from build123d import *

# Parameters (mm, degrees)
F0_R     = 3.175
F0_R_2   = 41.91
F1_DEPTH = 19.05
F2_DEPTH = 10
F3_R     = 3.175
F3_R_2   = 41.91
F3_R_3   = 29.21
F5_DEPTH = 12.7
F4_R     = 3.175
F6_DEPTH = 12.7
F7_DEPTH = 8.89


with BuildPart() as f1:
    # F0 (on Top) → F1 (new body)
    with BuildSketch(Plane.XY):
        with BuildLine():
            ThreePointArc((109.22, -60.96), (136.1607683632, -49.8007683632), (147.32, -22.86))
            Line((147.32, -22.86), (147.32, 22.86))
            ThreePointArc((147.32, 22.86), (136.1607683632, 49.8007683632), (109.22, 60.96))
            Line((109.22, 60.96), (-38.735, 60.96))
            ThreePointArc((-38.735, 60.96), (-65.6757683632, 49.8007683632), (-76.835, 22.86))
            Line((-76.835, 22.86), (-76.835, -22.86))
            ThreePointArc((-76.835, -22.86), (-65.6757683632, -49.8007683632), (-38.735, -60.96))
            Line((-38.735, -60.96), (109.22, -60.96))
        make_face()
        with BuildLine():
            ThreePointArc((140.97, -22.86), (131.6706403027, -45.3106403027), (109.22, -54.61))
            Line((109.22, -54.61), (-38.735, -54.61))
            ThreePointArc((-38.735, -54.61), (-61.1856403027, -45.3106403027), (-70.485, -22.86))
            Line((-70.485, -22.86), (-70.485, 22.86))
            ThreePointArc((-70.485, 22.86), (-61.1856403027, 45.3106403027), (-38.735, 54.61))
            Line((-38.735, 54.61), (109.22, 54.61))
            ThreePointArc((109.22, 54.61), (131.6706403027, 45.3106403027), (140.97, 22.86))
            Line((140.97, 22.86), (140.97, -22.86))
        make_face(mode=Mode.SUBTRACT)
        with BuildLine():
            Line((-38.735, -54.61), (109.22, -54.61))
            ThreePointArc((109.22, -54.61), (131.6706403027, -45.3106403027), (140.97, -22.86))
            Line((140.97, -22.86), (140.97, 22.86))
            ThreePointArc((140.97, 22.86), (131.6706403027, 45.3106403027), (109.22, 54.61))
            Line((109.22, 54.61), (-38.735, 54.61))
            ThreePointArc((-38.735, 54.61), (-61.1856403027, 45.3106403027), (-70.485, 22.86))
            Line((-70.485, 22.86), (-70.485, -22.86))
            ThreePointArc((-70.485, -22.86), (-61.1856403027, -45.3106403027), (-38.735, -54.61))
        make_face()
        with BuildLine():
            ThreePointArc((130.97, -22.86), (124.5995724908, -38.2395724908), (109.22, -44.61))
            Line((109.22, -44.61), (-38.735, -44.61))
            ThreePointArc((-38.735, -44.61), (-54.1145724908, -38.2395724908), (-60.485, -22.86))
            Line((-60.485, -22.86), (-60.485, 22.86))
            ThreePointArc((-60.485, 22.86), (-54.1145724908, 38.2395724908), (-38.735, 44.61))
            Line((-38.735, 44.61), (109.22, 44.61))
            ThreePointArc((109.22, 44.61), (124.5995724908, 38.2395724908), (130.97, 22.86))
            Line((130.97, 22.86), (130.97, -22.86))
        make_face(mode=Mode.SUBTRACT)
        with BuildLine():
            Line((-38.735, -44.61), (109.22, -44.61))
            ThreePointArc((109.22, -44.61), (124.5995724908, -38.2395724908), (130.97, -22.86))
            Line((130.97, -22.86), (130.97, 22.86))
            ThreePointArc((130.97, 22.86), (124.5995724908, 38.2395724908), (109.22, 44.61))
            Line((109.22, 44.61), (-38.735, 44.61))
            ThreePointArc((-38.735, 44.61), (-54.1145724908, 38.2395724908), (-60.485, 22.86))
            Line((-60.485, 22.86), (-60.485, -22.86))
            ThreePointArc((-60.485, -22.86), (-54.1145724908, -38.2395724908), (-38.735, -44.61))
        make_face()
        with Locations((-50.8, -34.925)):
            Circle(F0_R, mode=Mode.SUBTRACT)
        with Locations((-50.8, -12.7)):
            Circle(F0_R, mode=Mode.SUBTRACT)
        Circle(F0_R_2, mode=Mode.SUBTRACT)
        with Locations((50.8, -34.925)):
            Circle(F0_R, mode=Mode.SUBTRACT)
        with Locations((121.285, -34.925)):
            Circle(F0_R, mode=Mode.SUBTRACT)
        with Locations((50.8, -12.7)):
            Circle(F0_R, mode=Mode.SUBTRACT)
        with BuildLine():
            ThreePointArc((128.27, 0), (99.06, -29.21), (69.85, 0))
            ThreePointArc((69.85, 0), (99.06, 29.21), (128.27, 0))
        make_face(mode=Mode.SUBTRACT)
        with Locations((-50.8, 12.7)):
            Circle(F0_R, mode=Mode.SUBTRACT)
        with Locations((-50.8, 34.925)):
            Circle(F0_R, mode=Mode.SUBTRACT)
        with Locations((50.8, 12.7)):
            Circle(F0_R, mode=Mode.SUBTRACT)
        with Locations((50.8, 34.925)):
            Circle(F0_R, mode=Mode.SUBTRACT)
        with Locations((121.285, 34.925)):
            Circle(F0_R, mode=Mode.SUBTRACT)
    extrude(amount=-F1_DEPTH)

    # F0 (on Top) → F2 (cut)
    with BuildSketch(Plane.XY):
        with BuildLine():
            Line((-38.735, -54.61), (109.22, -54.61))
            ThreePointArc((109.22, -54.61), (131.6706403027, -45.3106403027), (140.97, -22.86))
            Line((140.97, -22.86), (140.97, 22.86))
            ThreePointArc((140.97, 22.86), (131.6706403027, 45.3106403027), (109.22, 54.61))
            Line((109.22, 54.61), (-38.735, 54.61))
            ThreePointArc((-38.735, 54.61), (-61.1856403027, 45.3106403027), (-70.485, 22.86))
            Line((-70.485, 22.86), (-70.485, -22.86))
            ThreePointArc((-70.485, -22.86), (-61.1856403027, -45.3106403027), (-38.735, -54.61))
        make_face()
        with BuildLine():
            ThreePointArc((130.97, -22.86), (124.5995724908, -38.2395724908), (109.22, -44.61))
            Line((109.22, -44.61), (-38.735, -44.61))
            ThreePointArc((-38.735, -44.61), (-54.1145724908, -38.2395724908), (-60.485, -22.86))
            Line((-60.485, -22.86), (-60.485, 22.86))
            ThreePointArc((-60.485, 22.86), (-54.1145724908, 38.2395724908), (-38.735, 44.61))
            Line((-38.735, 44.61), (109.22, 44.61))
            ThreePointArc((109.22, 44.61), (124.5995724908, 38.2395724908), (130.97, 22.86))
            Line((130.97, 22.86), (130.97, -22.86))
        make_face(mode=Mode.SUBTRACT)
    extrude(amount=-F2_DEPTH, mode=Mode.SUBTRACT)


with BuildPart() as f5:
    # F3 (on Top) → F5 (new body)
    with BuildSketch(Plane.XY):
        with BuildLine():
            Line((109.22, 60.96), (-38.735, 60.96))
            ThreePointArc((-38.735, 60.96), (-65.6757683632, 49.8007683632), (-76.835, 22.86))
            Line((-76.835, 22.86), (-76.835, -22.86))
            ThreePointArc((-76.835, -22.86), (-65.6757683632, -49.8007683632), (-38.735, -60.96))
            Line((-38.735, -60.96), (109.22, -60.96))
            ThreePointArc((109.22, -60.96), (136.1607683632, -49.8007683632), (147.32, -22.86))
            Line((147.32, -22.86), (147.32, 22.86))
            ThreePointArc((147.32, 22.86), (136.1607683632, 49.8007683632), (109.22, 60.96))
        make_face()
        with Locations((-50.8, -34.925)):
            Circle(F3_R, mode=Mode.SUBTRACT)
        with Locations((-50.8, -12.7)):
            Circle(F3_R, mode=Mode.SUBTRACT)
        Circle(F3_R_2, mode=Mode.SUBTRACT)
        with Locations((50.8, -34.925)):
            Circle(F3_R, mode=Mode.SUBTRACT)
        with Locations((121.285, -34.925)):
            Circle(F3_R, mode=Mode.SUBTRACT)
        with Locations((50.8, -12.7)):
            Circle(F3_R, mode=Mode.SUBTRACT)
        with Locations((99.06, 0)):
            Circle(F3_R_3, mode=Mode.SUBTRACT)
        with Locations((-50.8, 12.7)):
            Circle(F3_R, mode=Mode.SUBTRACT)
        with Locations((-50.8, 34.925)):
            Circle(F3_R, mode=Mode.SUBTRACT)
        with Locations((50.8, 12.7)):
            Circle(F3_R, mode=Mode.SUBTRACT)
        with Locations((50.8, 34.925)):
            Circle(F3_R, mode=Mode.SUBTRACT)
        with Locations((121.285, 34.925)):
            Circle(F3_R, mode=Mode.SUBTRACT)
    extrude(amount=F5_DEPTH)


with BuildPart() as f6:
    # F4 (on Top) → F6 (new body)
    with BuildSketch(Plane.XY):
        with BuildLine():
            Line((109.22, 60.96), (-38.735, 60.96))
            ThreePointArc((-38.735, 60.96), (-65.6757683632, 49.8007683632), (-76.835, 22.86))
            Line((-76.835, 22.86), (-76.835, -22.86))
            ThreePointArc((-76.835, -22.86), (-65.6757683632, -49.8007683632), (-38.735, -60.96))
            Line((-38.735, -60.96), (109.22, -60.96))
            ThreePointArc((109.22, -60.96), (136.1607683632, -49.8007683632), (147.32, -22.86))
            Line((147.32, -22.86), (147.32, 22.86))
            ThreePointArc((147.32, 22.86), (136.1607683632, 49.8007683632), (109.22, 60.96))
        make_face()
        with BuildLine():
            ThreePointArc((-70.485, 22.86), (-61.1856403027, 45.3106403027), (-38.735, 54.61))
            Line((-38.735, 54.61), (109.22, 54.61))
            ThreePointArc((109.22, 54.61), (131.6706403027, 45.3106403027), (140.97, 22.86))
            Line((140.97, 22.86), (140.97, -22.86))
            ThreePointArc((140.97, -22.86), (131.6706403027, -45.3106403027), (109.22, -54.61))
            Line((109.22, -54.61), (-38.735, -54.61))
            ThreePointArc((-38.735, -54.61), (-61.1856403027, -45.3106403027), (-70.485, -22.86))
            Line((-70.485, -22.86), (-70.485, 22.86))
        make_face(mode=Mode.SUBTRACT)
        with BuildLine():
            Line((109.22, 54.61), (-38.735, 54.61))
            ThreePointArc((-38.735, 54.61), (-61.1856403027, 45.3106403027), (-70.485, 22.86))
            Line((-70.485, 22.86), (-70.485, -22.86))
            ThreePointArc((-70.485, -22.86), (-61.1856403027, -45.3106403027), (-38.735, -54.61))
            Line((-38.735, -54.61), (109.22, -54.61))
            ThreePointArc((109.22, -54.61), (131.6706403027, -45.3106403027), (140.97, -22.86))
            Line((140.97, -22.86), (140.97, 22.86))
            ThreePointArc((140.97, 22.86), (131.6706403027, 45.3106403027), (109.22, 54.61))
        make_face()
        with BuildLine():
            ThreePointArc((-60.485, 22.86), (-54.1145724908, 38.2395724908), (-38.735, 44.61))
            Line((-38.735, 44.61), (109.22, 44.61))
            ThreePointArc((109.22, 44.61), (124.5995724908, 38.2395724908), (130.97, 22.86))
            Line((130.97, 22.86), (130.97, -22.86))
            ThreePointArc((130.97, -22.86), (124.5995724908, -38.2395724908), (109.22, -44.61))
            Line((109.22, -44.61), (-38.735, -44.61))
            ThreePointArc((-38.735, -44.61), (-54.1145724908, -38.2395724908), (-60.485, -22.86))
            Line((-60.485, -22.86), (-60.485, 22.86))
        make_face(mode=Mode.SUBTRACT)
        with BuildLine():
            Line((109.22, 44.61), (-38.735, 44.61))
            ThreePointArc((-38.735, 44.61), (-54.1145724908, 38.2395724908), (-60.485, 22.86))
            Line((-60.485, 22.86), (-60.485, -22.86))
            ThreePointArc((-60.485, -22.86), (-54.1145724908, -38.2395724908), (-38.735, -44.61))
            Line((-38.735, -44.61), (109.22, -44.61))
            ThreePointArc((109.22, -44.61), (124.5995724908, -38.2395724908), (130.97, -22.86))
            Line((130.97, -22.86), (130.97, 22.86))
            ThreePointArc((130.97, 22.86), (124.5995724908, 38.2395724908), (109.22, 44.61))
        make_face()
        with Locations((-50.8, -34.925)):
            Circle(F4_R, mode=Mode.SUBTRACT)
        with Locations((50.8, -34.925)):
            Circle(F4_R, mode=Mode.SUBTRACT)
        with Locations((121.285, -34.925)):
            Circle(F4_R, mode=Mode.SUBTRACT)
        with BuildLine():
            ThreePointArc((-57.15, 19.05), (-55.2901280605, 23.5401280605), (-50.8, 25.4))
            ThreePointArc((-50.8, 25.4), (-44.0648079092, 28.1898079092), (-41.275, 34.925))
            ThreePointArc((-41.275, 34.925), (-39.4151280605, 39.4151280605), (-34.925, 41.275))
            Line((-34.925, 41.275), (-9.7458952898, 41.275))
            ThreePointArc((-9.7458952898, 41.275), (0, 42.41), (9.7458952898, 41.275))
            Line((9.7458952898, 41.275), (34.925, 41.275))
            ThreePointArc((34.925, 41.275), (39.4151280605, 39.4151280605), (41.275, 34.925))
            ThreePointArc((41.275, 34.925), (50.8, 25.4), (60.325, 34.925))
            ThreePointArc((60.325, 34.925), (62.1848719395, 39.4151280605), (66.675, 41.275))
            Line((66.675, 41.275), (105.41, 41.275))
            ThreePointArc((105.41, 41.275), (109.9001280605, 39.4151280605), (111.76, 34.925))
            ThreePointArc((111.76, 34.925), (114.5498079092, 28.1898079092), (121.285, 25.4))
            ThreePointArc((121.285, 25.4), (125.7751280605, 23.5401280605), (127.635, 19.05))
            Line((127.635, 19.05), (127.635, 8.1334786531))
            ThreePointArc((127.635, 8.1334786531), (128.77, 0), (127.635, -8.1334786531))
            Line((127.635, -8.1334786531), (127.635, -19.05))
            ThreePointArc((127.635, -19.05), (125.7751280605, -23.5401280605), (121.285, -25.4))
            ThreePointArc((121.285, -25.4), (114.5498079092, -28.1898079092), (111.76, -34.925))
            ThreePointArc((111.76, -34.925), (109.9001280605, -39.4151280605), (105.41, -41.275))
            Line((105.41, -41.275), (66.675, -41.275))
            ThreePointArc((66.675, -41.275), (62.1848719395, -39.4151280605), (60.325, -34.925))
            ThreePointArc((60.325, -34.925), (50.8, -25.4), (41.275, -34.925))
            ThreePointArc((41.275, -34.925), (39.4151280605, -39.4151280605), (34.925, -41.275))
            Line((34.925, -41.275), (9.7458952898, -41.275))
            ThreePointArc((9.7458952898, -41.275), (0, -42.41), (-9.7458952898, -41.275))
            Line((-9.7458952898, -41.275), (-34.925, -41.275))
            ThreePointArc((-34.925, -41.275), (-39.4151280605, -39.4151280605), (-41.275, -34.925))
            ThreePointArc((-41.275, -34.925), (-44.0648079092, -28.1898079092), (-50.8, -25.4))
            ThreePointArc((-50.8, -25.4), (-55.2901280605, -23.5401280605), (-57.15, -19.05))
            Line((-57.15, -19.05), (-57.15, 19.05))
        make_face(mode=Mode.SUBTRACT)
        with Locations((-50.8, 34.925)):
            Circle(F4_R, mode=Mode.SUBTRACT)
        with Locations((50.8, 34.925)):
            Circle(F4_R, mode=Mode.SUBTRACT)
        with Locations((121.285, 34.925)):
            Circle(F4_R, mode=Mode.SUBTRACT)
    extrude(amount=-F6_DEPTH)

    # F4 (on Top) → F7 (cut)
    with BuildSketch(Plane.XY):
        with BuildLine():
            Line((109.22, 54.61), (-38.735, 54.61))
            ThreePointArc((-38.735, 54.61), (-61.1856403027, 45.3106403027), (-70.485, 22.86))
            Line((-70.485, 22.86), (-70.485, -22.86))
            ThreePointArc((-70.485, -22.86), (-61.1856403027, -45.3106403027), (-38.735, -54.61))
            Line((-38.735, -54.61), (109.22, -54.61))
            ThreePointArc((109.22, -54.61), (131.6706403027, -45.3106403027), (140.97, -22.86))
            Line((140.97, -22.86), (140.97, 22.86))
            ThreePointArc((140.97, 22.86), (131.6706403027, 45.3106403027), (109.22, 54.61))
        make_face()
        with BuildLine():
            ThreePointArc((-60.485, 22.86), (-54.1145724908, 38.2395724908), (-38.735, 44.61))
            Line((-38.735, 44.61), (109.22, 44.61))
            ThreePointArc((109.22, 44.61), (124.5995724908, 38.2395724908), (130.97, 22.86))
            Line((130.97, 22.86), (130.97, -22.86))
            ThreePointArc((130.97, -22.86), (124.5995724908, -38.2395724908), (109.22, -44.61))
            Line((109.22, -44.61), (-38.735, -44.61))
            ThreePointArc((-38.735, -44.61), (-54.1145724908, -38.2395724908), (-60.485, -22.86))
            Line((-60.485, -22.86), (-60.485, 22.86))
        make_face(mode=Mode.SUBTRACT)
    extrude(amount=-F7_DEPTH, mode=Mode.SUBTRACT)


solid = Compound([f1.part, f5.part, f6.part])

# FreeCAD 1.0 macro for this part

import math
import FreeCAD as App
import Part
import Sketcher

V = App.Vector
Q = App.Units.Quantity

doc = App.newDocument("Part")
body = doc.addObject("PartDesign::Body", "Body")

# Sketch on XY plane
sketch1 = doc.addObject("Sketcher::SketchObject", "Sketch")
body.addObject(sketch1)
sketch1.AttachmentSupport = (doc.XY_Plane, [""])
sketch1.MapMode = "FlatFace"
sketch1.addGeometry([
    Part.ArcOfCircle(Part.Circle(V(109.22, -22.86, 0), V(0, 0, 1), 38.1), math.radians(-90), math.radians(0)),  # 0
    Part.LineSegment(V(147.32, -22.86, 0), V(147.32, 22.86, 0)),  # 1
    Part.ArcOfCircle(Part.Circle(V(109.22, 22.86, 0), V(0, 0, 1), 38.1), math.radians(0), math.radians(90)),  # 2
    Part.LineSegment(V(109.22, 60.96, 0), V(-38.735, 60.96, 0)),  # 3
    Part.ArcOfCircle(Part.Circle(V(-38.735, 22.86, 0), V(0, 0, 1), 38.1), math.radians(90), math.radians(180)),  # 4
    Part.LineSegment(V(-76.835, 22.86, 0), V(-76.835, -22.86, 0)),  # 5
    Part.ArcOfCircle(Part.Circle(V(-38.735, -22.86, 0), V(0, 0, 1), 38.1), math.radians(180), math.radians(270)),  # 6
    Part.LineSegment(V(-38.735, -60.96, 0), V(109.22, -60.96, 0)),  # 7
    Part.Circle(V(-50.8, -34.925, 0), V(0, 0, 1), 3.175),  # 8
    Part.Circle(V(-50.8, -12.7, 0), V(0, 0, 1), 3.175),  # 9
    Part.Circle(V(50.8, -34.925, 0), V(0, 0, 1), 3.175),  # 10
    Part.Circle(V(121.285, -34.925, 0), V(0, 0, 1), 3.175),  # 11
    Part.Circle(V(50.8, -12.7, 0), V(0, 0, 1), 3.175),  # 12
    Part.Circle(V(99.06, 0, 0), V(0, 0, 1), 29.21),  # 13
    Part.Circle(V(-50.8, 12.7, 0), V(0, 0, 1), 3.175),  # 14
    Part.Circle(V(0, 0, 0), V(0, 0, 1), 41.91),  # 15
    Part.Circle(V(-50.8, 34.925, 0), V(0, 0, 1), 3.175),  # 16
    Part.Circle(V(50.8, 12.7, 0), V(0, 0, 1), 3.175),  # 17
    Part.Circle(V(50.8, 34.925, 0), V(0, 0, 1), 3.175),  # 18
    Part.Circle(V(121.285, 34.925, 0), V(0, 0, 1), 3.175),  # 19
], False)
sketch1.addConstraint([
    Sketcher.Constraint("Tangent", 0, 2, 1, 1),
    Sketcher.Constraint("Tangent", 1, 2, 2, 1),
    Sketcher.Constraint("Tangent", 2, 2, 3, 1),
    Sketcher.Constraint("Tangent", 3, 2, 4, 1),
    Sketcher.Constraint("Tangent", 4, 2, 5, 1),
    Sketcher.Constraint("Tangent", 5, 2, 6, 1),
    Sketcher.Constraint("Tangent", 6, 2, 7, 1),
    Sketcher.Constraint("Tangent", 7, 2, 0, 1),
    Sketcher.Constraint("Vertical", 1),
    Sketcher.Constraint("Horizontal", 3),
    Sketcher.Constraint("Vertical", 5),
    Sketcher.Constraint("Horizontal", 7),
    Sketcher.Constraint("Coincident", 15, 3, -1, 1),
    Sketcher.Constraint("Equal", 0, 2),
    Sketcher.Constraint("Equal", 2, 4),
    Sketcher.Constraint("Equal", 4, 6),
    Sketcher.Constraint("Equal", 8, 9),
    Sketcher.Constraint("Equal", 9, 10),
    Sketcher.Constraint("Equal", 10, 11),
    Sketcher.Constraint("Equal", 11, 12),
    Sketcher.Constraint("Equal", 12, 14),
    Sketcher.Constraint("Equal", 14, 16),
    Sketcher.Constraint("Equal", 16, 17),
    Sketcher.Constraint("Equal", 17, 18),
    Sketcher.Constraint("Equal", 18, 19),
    Sketcher.Constraint("Symmetric", 12, 3, 14, 3, -1, 1),
    Sketcher.Constraint("Symmetric", 10, 3, 16, 3, -1, 1),
    Sketcher.Constraint("Symmetric", 9, 3, 17, 3, -1, 1),
    Sketcher.Constraint("Symmetric", 8, 3, 18, 3, -1, 1),
    Sketcher.Constraint("Symmetric", 8, 3, 10, 3, -2),
    Sketcher.Constraint("Symmetric", 9, 3, 12, 3, -2),
    Sketcher.Constraint("Symmetric", 11, 3, 19, 3, -1),
    Sketcher.Constraint("PointOnObject", 13, 3, -1),
    Sketcher.Constraint("Horizontal", 10, 3, 11, 3),
    Sketcher.Constraint("Vertical", 8, 3, 9, 3),
    Sketcher.Constraint("Diameter", 13, Q("2.3 in")),
    Sketcher.Constraint("Diameter", 15, Q("3.3 in")),
    Sketcher.Constraint("Radius", 0, Q("1.5 in")),
    Sketcher.Constraint("Diameter", 8, Q("0.25 in")),
    Sketcher.Constraint("DistanceY", 1, 1, 1, 2, Q("1.8 in")),
    Sketcher.Constraint("DistanceX", 8, 3, -1, 1, Q("2 in")),
    Sketcher.Constraint("DistanceY", 9, 3, 14, 3, Q("1 in")),
    Sketcher.Constraint("DistanceX", -1, 1, 0, 3, Q("4.3 in")),
    Sketcher.Constraint("DistanceY", 0, 3, -1, 1, Q("0.9 in")),
    Sketcher.Constraint("DistanceX", -1, 1, 13, 3, Q("3.9 in")),
    Sketcher.Constraint("DistanceX", 6, 3, 11, 3, Q("6.3 in")),
    Sketcher.Constraint("DistanceX", 3, 2, 3, 1, Q("5.825 in")),
    Sketcher.Constraint("DistanceY", 11, 3, 19, 3, Q("2.75 in")),
])
pad1 = doc.addObject("PartDesign::Pad", "Pad")
body.addObject(pad1)
pad1.Profile = sketch1
pad1.Length = Q("0.75 in")
pad1.Reversed = True

# Sketch on XY plane
sketch2 = doc.addObject("Sketcher::SketchObject", "Sketch001")
body.addObject(sketch2)
sketch2.AttachmentSupport = (doc.XY_Plane, [""])
sketch2.MapMode = "FlatFace"
sketch2.addGeometry([
    Part.LineSegment(V(-38.735, -54.61, 0), V(109.22, -54.61, 0)),  # 0
    Part.ArcOfCircle(Part.Circle(V(109.22, -22.86, 0), V(0, 0, 1), 31.75), math.radians(-90), math.radians(0)),  # 1
    Part.LineSegment(V(140.97, -22.86, 0), V(140.97, 22.86, 0)),  # 2
    Part.ArcOfCircle(Part.Circle(V(109.22, 22.86, 0), V(0, 0, 1), 31.75), math.radians(0), math.radians(90)),  # 3
    Part.LineSegment(V(109.22, 54.61, 0), V(-38.735, 54.61, 0)),  # 4
    Part.ArcOfCircle(Part.Circle(V(-38.735, 22.86, 0), V(0, 0, 1), 31.75), math.radians(90), math.radians(180)),  # 5
    Part.LineSegment(V(-70.485, 22.86, 0), V(-70.485, -22.86, 0)),  # 6
    Part.ArcOfCircle(Part.Circle(V(-38.735, -22.86, 0), V(0, 0, 1), 31.75), math.radians(180), math.radians(270)),  # 7
    Part.LineSegment(V(130.97, 22.86, 0), V(130.97, -22.86, 0)),  # 8
    Part.ArcOfCircle(Part.Circle(V(109.22, -22.86, 0), V(0, 0, 1), 21.75), math.radians(-90), math.radians(0)),  # 9
    Part.LineSegment(V(109.22, -44.61, 0), V(-38.735, -44.61, 0)),  # 10
    Part.ArcOfCircle(Part.Circle(V(-38.735, -22.86, 0), V(0, 0, 1), 21.75), math.radians(180), math.radians(270)),  # 11
    Part.LineSegment(V(-60.485, -22.86, 0), V(-60.485, 22.86, 0)),  # 12
    Part.ArcOfCircle(Part.Circle(V(-38.735, 22.86, 0), V(0, 0, 1), 21.75), math.radians(90), math.radians(180)),  # 13
    Part.LineSegment(V(-38.735, 44.61, 0), V(109.22, 44.61, 0)),  # 14
    Part.ArcOfCircle(Part.Circle(V(109.22, 22.86, 0), V(0, 0, 1), 21.75), math.radians(0), math.radians(90)),  # 15
], False)
sketch2.addConstraint([
    Sketcher.Constraint("Tangent", 0, 2, 1, 1),
    Sketcher.Constraint("Tangent", 1, 2, 2, 1),
    Sketcher.Constraint("Tangent", 2, 2, 3, 1),
    Sketcher.Constraint("Tangent", 3, 2, 4, 1),
    Sketcher.Constraint("Tangent", 4, 2, 5, 1),
    Sketcher.Constraint("Tangent", 5, 2, 6, 1),
    Sketcher.Constraint("Tangent", 6, 2, 7, 1),
    Sketcher.Constraint("Tangent", 7, 2, 0, 1),
    Sketcher.Constraint("Tangent", 8, 2, 9, 2),
    Sketcher.Constraint("Tangent", 9, 1, 10, 1),
    Sketcher.Constraint("Tangent", 10, 2, 11, 2),
    Sketcher.Constraint("Tangent", 11, 1, 12, 1),
    Sketcher.Constraint("Tangent", 12, 2, 13, 2),
    Sketcher.Constraint("Tangent", 13, 1, 14, 1),
    Sketcher.Constraint("Tangent", 14, 2, 15, 2),
    Sketcher.Constraint("Tangent", 15, 1, 8, 1),
    Sketcher.Constraint("Horizontal", 0),
    Sketcher.Constraint("Vertical", 2),
    Sketcher.Constraint("Horizontal", 4),
    Sketcher.Constraint("Vertical", 6),
    Sketcher.Constraint("Vertical", 8),
    Sketcher.Constraint("Horizontal", 10),
    Sketcher.Constraint("Vertical", 12),
    Sketcher.Constraint("Horizontal", 14),
    Sketcher.Constraint("Coincident", 9, 3, 1, 3),
    Sketcher.Constraint("Coincident", 11, 3, 7, 3),
    Sketcher.Constraint("Coincident", 13, 3, 5, 3),
    Sketcher.Constraint("Equal", 1, 3),
    Sketcher.Constraint("Equal", 3, 5),
    Sketcher.Constraint("Equal", 5, 7),
    Sketcher.Constraint("Equal", 13, 15),
    Sketcher.Constraint("Radius", 1, Q("1.25 in")),
    Sketcher.Constraint("DistanceY", 2, 1, 2, 2, Q("1.8 in")),
    Sketcher.Constraint("DistanceX", -1, 1, 1, 3, Q("4.3 in")),
    Sketcher.Constraint("DistanceY", 1, 3, -1, 1, Q("0.9 in")),
    Sketcher.Constraint("DistanceX", 0, 1, 0, 2, Q("5.825 in")),
    Sketcher.Constraint("Radius", 9, 21.75),
])
pocket1 = doc.addObject("PartDesign::Pocket", "Pocket")
body.addObject(pocket1)
pocket1.Profile = sketch2
pocket1.Length = 10
body2 = doc.addObject("PartDesign::Body", "Body001")

# Sketch on XY plane
sketch3 = doc.addObject("Sketcher::SketchObject", "Sketch002")
body2.addObject(sketch3)
sketch3.AttachmentSupport = (doc.getObject("XY_Plane001"), [""])
sketch3.MapMode = "FlatFace"
sketch3.addGeometry([
    Part.LineSegment(V(109.22, 60.96, 0), V(-38.735, 60.96, 0)),  # 0
    Part.ArcOfCircle(Part.Circle(V(-38.735, 22.86, 0), V(0, 0, 1), 38.1), math.radians(90), math.radians(180)),  # 1
    Part.LineSegment(V(-76.835, 22.86, 0), V(-76.835, -22.86, 0)),  # 2
    Part.ArcOfCircle(Part.Circle(V(-38.735, -22.86, 0), V(0, 0, 1), 38.1), math.radians(180), math.radians(270)),  # 3
    Part.LineSegment(V(-38.735, -60.96, 0), V(109.22, -60.96, 0)),  # 4
    Part.ArcOfCircle(Part.Circle(V(109.22, -22.86, 0), V(0, 0, 1), 38.1), math.radians(-90), math.radians(0)),  # 5
    Part.LineSegment(V(147.32, -22.86, 0), V(147.32, 22.86, 0)),  # 6
    Part.ArcOfCircle(Part.Circle(V(109.22, 22.86, 0), V(0, 0, 1), 38.1), math.radians(0), math.radians(90)),  # 7
    Part.Circle(V(-50.8, -34.925, 0), V(0, 0, 1), 3.175),  # 8
    Part.Circle(V(-50.8, -12.7, 0), V(0, 0, 1), 3.175),  # 9
    Part.Circle(V(50.8, -34.925, 0), V(0, 0, 1), 3.175),  # 10
    Part.Circle(V(121.285, -34.925, 0), V(0, 0, 1), 3.175),  # 11
    Part.Circle(V(50.8, -12.7, 0), V(0, 0, 1), 3.175),  # 12
    Part.Circle(V(-50.8, 12.7, 0), V(0, 0, 1), 3.175),  # 13
    Part.Circle(V(0, 0, 0), V(0, 0, 1), 41.91),  # 14
    Part.Circle(V(-50.8, 34.925, 0), V(0, 0, 1), 3.175),  # 15
    Part.Circle(V(50.8, 12.7, 0), V(0, 0, 1), 3.175),  # 16
    Part.Circle(V(99.06, 0, 0), V(0, 0, 1), 29.21),  # 17
    Part.Circle(V(50.8, 34.925, 0), V(0, 0, 1), 3.175),  # 18
    Part.Circle(V(121.285, 34.925, 0), V(0, 0, 1), 3.175),  # 19
], False)
sketch3.addConstraint([
    Sketcher.Constraint("Tangent", 0, 2, 1, 1),
    Sketcher.Constraint("Tangent", 1, 2, 2, 1),
    Sketcher.Constraint("Tangent", 2, 2, 3, 1),
    Sketcher.Constraint("Tangent", 3, 2, 4, 1),
    Sketcher.Constraint("Tangent", 4, 2, 5, 1),
    Sketcher.Constraint("Tangent", 5, 2, 6, 1),
    Sketcher.Constraint("Tangent", 6, 2, 7, 1),
    Sketcher.Constraint("Tangent", 7, 2, 0, 1),
    Sketcher.Constraint("Horizontal", 0),
    Sketcher.Constraint("Vertical", 2),
    Sketcher.Constraint("Horizontal", 4),
    Sketcher.Constraint("Vertical", 6),
    Sketcher.Constraint("Coincident", 14, 3, -1, 1),
    Sketcher.Constraint("Equal", 1, 3),
    Sketcher.Constraint("Equal", 3, 5),
    Sketcher.Constraint("Equal", 5, 7),
    Sketcher.Constraint("Equal", 8, 9),
    Sketcher.Constraint("Equal", 9, 10),
    Sketcher.Constraint("Equal", 10, 11),
    Sketcher.Constraint("Equal", 11, 12),
    Sketcher.Constraint("Equal", 12, 13),
    Sketcher.Constraint("Equal", 13, 15),
    Sketcher.Constraint("Equal", 15, 16),
    Sketcher.Constraint("Equal", 16, 18),
    Sketcher.Constraint("Equal", 18, 19),
    Sketcher.Constraint("Symmetric", 12, 3, 13, 3, -1, 1),
    Sketcher.Constraint("Symmetric", 10, 3, 15, 3, -1, 1),
    Sketcher.Constraint("Symmetric", 9, 3, 16, 3, -1, 1),
    Sketcher.Constraint("Symmetric", 8, 3, 18, 3, -1, 1),
    Sketcher.Constraint("Symmetric", 8, 3, 10, 3, -2),
    Sketcher.Constraint("Symmetric", 9, 3, 12, 3, -2),
    Sketcher.Constraint("Symmetric", 11, 3, 19, 3, -1),
    Sketcher.Constraint("PointOnObject", 17, 3, -1),
    Sketcher.Constraint("Horizontal", 10, 3, 11, 3),
    Sketcher.Constraint("Vertical", 8, 3, 9, 3),
    Sketcher.Constraint("Diameter", 14, Q("3.3 in")),
    Sketcher.Constraint("Diameter", 17, Q("2.3 in")),
    Sketcher.Constraint("Radius", 1, Q("1.5 in")),
    Sketcher.Constraint("Diameter", 8, Q("0.25 in")),
    Sketcher.Constraint("DistanceY", 2, 2, 2, 1, Q("1.8 in")),
    Sketcher.Constraint("DistanceX", 8, 3, -1, 1, Q("2 in")),
    Sketcher.Constraint("DistanceY", 9, 3, 13, 3, Q("1 in")),
    Sketcher.Constraint("DistanceY", -1, 1, 1, 3, Q("0.9 in")),
    Sketcher.Constraint("DistanceX", -1, 1, 5, 3, Q("4.3 in")),
    Sketcher.Constraint("DistanceX", -1, 1, 17, 3, Q("3.9 in")),
    Sketcher.Constraint("DistanceX", 3, 3, 11, 3, Q("6.3 in")),
    Sketcher.Constraint("DistanceX", 0, 2, 0, 1, Q("5.825 in")),
    Sketcher.Constraint("DistanceY", 11, 3, 19, 3, Q("2.75 in")),
])
pad2 = doc.addObject("PartDesign::Pad", "Pad001")
body2.addObject(pad2)
pad2.Profile = sketch3
pad2.Length = Q("0.5 in")
body3 = doc.addObject("PartDesign::Body", "Body002")

# Sketch on XY plane
sketch4 = doc.addObject("Sketcher::SketchObject", "Sketch003")
body3.addObject(sketch4)
sketch4.AttachmentSupport = (doc.getObject("XY_Plane002"), [""])
sketch4.MapMode = "FlatFace"
sketch4.addGeometry([
    Part.LineSegment(V(109.22, 60.96, 0), V(-38.735, 60.96, 0)),  # 0
    Part.ArcOfCircle(Part.Circle(V(-38.735, 22.86, 0), V(0, 0, 1), 38.1), math.radians(90), math.radians(180)),  # 1
    Part.LineSegment(V(-76.835, 22.86, 0), V(-76.835, -22.86, 0)),  # 2
    Part.ArcOfCircle(Part.Circle(V(-38.735, -22.86, 0), V(0, 0, 1), 38.1), math.radians(180), math.radians(270)),  # 3
    Part.LineSegment(V(-38.735, -60.96, 0), V(109.22, -60.96, 0)),  # 4
    Part.ArcOfCircle(Part.Circle(V(109.22, -22.86, 0), V(0, 0, 1), 38.1), math.radians(-90), math.radians(0)),  # 5
    Part.LineSegment(V(147.32, -22.86, 0), V(147.32, 22.86, 0)),  # 6
    Part.ArcOfCircle(Part.Circle(V(109.22, 22.86, 0), V(0, 0, 1), 38.1), math.radians(0), math.radians(90)),  # 7
    Part.Circle(V(-50.8, -34.925, 0), V(0, 0, 1), 3.175),  # 8
    Part.Circle(V(50.8, -34.925, 0), V(0, 0, 1), 3.175),  # 9
    Part.Circle(V(121.285, -34.925, 0), V(0, 0, 1), 3.175),  # 10
    Part.Circle(V(-50.8, 34.925, 0), V(0, 0, 1), 3.175),  # 11
    Part.LineSegment(V(-57.15, -19.05, 0), V(-57.15, 19.05, 0)),  # 12
    Part.ArcOfCircle(Part.Circle(V(-50.8, 19.05, 0), V(0, 0, 1), 6.35), math.radians(90), math.radians(180)),  # 13
    Part.ArcOfCircle(Part.Circle(V(-50.8, 34.925, 0), V(0, 0, 1), 9.525), math.radians(-90), math.radians(0)),  # 14
    Part.ArcOfCircle(Part.Circle(V(-34.925, 34.925, 0), V(0, 0, 1), 6.35), math.radians(90), math.radians(180)),  # 15
    Part.LineSegment(V(-34.925, 41.275, 0), V(-9.745895, 41.275, 0)),  # 16
    Part.ArcOfCircle(Part.Circle(V(0, 0, 0), V(0, 0, 1), 42.41), math.radians(76.714596), math.radians(103.285404)),  # 17
    Part.LineSegment(V(9.745895, 41.275, 0), V(34.925, 41.275, 0)),  # 18
    Part.ArcOfCircle(Part.Circle(V(34.925, 34.925, 0), V(0, 0, 1), 6.35), math.radians(0), math.radians(90)),  # 19
    Part.ArcOfCircle(Part.Circle(V(50.8, 34.925, 0), V(0, 0, 1), 9.525), math.radians(180), math.radians(360)),  # 20
    Part.ArcOfCircle(Part.Circle(V(66.675, 34.925, 0), V(0, 0, 1), 6.35), math.radians(90), math.radians(180)),  # 21
    Part.LineSegment(V(66.675, 41.275, 0), V(105.41, 41.275, 0)),  # 22
    Part.ArcOfCircle(Part.Circle(V(105.41, 34.925, 0), V(0, 0, 1), 6.35), math.radians(0), math.radians(90)),  # 23
    Part.ArcOfCircle(Part.Circle(V(121.285, 34.925, 0), V(0, 0, 1), 9.525), math.radians(180), math.radians(270)),  # 24
    Part.ArcOfCircle(Part.Circle(V(121.285, 19.05, 0), V(0, 0, 1), 6.35), math.radians(0), math.radians(90)),  # 25
    Part.LineSegment(V(127.635, 19.05, 0), V(127.635, 8.133479, 0)),  # 26
    Part.ArcOfCircle(Part.Circle(V(99.06, 0, 0), V(0, 0, 1), 29.71), math.radians(-15.88827), math.radians(15.88827)),  # 27
    Part.LineSegment(V(127.635, -8.133479, 0), V(127.635, -19.05, 0)),  # 28
    Part.ArcOfCircle(Part.Circle(V(121.285, -19.05, 0), V(0, 0, 1), 6.35), math.radians(-90), math.radians(0)),  # 29
    Part.ArcOfCircle(Part.Circle(V(121.285, -34.925, 0), V(0, 0, 1), 9.525), math.radians(90), math.radians(180)),  # 30
    Part.ArcOfCircle(Part.Circle(V(105.41, -34.925, 0), V(0, 0, 1), 6.35), math.radians(-90), math.radians(0)),  # 31
    Part.LineSegment(V(105.41, -41.275, 0), V(66.675, -41.275, 0)),  # 32
    Part.ArcOfCircle(Part.Circle(V(66.675, -34.925, 0), V(0, 0, 1), 6.35), math.radians(180), math.radians(270)),  # 33
    Part.ArcOfCircle(Part.Circle(V(50.8, -34.925, 0), V(0, 0, 1), 9.525), math.radians(0), math.radians(180)),  # 34
    Part.ArcOfCircle(Part.Circle(V(34.925, -34.925, 0), V(0, 0, 1), 6.35), math.radians(-90), math.radians(0)),  # 35
    Part.LineSegment(V(34.925, -41.275, 0), V(9.745895, -41.275, 0)),  # 36
    Part.ArcOfCircle(Part.Circle(V(0, 0, 0), V(0, 0, 1), 42.41), math.radians(-103.285404), math.radians(-76.714596)),  # 37
    Part.LineSegment(V(-9.745895, -41.275, 0), V(-34.925, -41.275, 0)),  # 38
    Part.ArcOfCircle(Part.Circle(V(-34.925, -34.925, 0), V(0, 0, 1), 6.35), math.radians(180), math.radians(270)),  # 39
    Part.ArcOfCircle(Part.Circle(V(-50.8, -34.925, 0), V(0, 0, 1), 9.525), math.radians(0), math.radians(90)),  # 40
    Part.ArcOfCircle(Part.Circle(V(-50.8, -19.05, 0), V(0, 0, 1), 6.35), math.radians(180), math.radians(270)),  # 41
    Part.Circle(V(50.8, 34.925, 0), V(0, 0, 1), 3.175),  # 42
    Part.Circle(V(121.285, 34.925, 0), V(0, 0, 1), 3.175),  # 43
], False)
sketch4.addConstraint([
    Sketcher.Constraint("Tangent", 0, 2, 1, 1),
    Sketcher.Constraint("Tangent", 1, 2, 2, 1),
    Sketcher.Constraint("Tangent", 2, 2, 3, 1),
    Sketcher.Constraint("Tangent", 3, 2, 4, 1),
    Sketcher.Constraint("Tangent", 4, 2, 5, 1),
    Sketcher.Constraint("Tangent", 5, 2, 6, 1),
    Sketcher.Constraint("Tangent", 6, 2, 7, 1),
    Sketcher.Constraint("Tangent", 7, 2, 0, 1),
    Sketcher.Constraint("Tangent", 12, 2, 13, 2),
    Sketcher.Constraint("Tangent", 13, 1, 14, 1),
    Sketcher.Constraint("Tangent", 14, 2, 15, 2),
    Sketcher.Constraint("Tangent", 15, 1, 16, 1),
    Sketcher.Constraint("Coincident", 16, 2, 17, 2),
    Sketcher.Constraint("Coincident", 17, 1, 18, 1),
    Sketcher.Constraint("Tangent", 18, 2, 19, 2),
    Sketcher.Constraint("Tangent", 19, 1, 20, 1),
    Sketcher.Constraint("Tangent", 20, 2, 21, 2),
    Sketcher.Constraint("Tangent", 21, 1, 22, 1),
    Sketcher.Constraint("Tangent", 22, 2, 23, 2),
    Sketcher.Constraint("Tangent", 23, 1, 24, 1),
    Sketcher.Constraint("Tangent", 24, 2, 25, 2),
    Sketcher.Constraint("Tangent", 25, 1, 26, 1),
    Sketcher.Constraint("Coincident", 26, 2, 27, 2),
    Sketcher.Constraint("Coincident", 27, 1, 28, 1),
    Sketcher.Constraint("Tangent", 28, 2, 29, 2),
    Sketcher.Constraint("Tangent", 29, 1, 30, 1),
    Sketcher.Constraint("Tangent", 30, 2, 31, 2),
    Sketcher.Constraint("Tangent", 31, 1, 32, 1),
    Sketcher.Constraint("Tangent", 32, 2, 33, 2),
    Sketcher.Constraint("Tangent", 33, 1, 34, 1),
    Sketcher.Constraint("Tangent", 34, 2, 35, 2),
    Sketcher.Constraint("Tangent", 35, 1, 36, 1),
    Sketcher.Constraint("Coincident", 36, 2, 37, 2),
    Sketcher.Constraint("Coincident", 37, 1, 38, 1),
    Sketcher.Constraint("Tangent", 38, 2, 39, 2),
    Sketcher.Constraint("Tangent", 39, 1, 40, 1),
    Sketcher.Constraint("Tangent", 40, 2, 41, 2),
    Sketcher.Constraint("Tangent", 41, 1, 12, 1),
    Sketcher.Constraint("Horizontal", 0),
    Sketcher.Constraint("Vertical", 2),
    Sketcher.Constraint("Horizontal", 4),
    Sketcher.Constraint("Vertical", 6),
    Sketcher.Constraint("Vertical", 12),
    Sketcher.Constraint("Horizontal", 16),
    Sketcher.Constraint("Horizontal", 18),
    Sketcher.Constraint("Horizontal", 22),
    Sketcher.Constraint("Vertical", 26),
    Sketcher.Constraint("Vertical", 28),
    Sketcher.Constraint("Horizontal", 32),
    Sketcher.Constraint("Horizontal", 36),
    Sketcher.Constraint("Horizontal", 38),
    Sketcher.Constraint("Coincident", 17, 3, -1, 1),
    Sketcher.Constraint("Coincident", 37, 3, -1, 1),
    Sketcher.Constraint("Coincident", 14, 3, 11, 3),
    Sketcher.Constraint("Coincident", 30, 3, 10, 3),
    Sketcher.Constraint("Coincident", 34, 3, 9, 3),
    Sketcher.Constraint("Coincident", 40, 3, 8, 3),
    Sketcher.Constraint("Coincident", 42, 3, 20, 3),
    Sketcher.Constraint("Coincident", 43, 3, 24, 3),
    Sketcher.Constraint("Equal", 1, 3),
    Sketcher.Constraint("Equal", 3, 5),
    Sketcher.Constraint("Equal", 5, 7),
    Sketcher.Constraint("Equal", 8, 9),
    Sketcher.Constraint("Equal", 9, 10),
    Sketcher.Constraint("Equal", 10, 11),
    Sketcher.Constraint("Equal", 13, 15),
    Sketcher.Constraint("Equal", 15, 19),
    Sketcher.Constraint("Equal", 14, 20),
    Sketcher.Constraint("Equal", 19, 21),
    Sketcher.Constraint("Equal", 21, 23),
    Sketcher.Constraint("Equal", 20, 24),
    Sketcher.Constraint("Equal", 23, 25),
    Sketcher.Constraint("Equal", 25, 29),
    Sketcher.Constraint("Equal", 24, 30),
    Sketcher.Constraint("Equal", 29, 31),
    Sketcher.Constraint("Equal", 31, 33),
    Sketcher.Constraint("Equal", 30, 34),
    Sketcher.Constraint("Equal", 33, 35),
    Sketcher.Constraint("Equal", 17, 37),
    Sketcher.Constraint("Equal", 35, 39),
    Sketcher.Constraint("Equal", 34, 40),
    Sketcher.Constraint("Equal", 39, 41),
    Sketcher.Constraint("Equal", 11, 42),
    Sketcher.Constraint("Equal", 42, 43),
    Sketcher.Constraint("Symmetric", 9, 3, 11, 3, -1, 1),
    Sketcher.Constraint("Symmetric", 8, 3, 20, 3, -1, 1),
    Sketcher.Constraint("Symmetric", 8, 3, 9, 3, -2),
    Sketcher.Constraint("Symmetric", 10, 3, 24, 3, -1),
    Sketcher.Constraint("Symmetric", 26, 2, 27, 1, -1),
    Sketcher.Constraint("Horizontal", 9, 3, 10, 3),
    Sketcher.Constraint("Horizontal", 14, 3, 15, 3),
    Sketcher.Constraint("Horizontal", 15, 3, 19, 3),
    Sketcher.Constraint("Horizontal", 20, 3, 21, 3),
    Sketcher.Constraint("Horizontal", 30, 3, 31, 3),
    Sketcher.Constraint("Horizontal", 34, 3, 35, 3),
    Sketcher.Constraint("Horizontal", 35, 3, 39, 3),
    Sketcher.Constraint("Vertical", 11, 3, 13, 3),
    Sketcher.Constraint("Vertical", 24, 3, 25, 3),
    Sketcher.Constraint("Radius", 1, Q("1.5 in")),
    Sketcher.Constraint("Diameter", 8, Q("0.25 in")),
    Sketcher.Constraint("Radius", 13, Q("0.25 in")),
    Sketcher.Constraint("DistanceY", 2, 2, 2, 1, Q("1.8 in")),
    Sketcher.Constraint("DistanceY", 12, 1, 12, 2, Q("1.5 in")),
    Sketcher.Constraint("DistanceX", 8, 3, -1, 1, Q("2 in")),
    Sketcher.Constraint("Radius", 14, Q("0.375 in")),
    Sketcher.Constraint("DistanceY", -1, 1, 1, 3, Q("0.9 in")),
    Sketcher.Constraint("DistanceX", -1, 1, 5, 3, Q("4.3 in")),
    Sketcher.Constraint("DistanceX", -1, 1, 27, 3, Q("3.9 in")),
    Sketcher.Constraint("DistanceX", -1, 1, 23, 1, Q("4.4 in")),
    Sketcher.Constraint("DistanceX", 0, 2, 0, 1, Q("5.825 in")),
    Sketcher.Constraint("Radius", 17, 42.41),
    Sketcher.Constraint("Radius", 27, 29.71),
])
pad3 = doc.addObject("PartDesign::Pad", "Pad002")
body3.addObject(pad3)
pad3.Profile = sketch4
pad3.Length = Q("0.5 in")
pad3.Reversed = True

# Sketch on XY plane
sketch5 = doc.addObject("Sketcher::SketchObject", "Sketch004")
body3.addObject(sketch5)
sketch5.AttachmentSupport = (doc.getObject("XY_Plane002"), [""])
sketch5.MapMode = "FlatFace"
sketch5.addGeometry([
    Part.LineSegment(V(109.22, 54.61, 0), V(-38.735, 54.61, 0)),  # 0
    Part.ArcOfCircle(Part.Circle(V(-38.735, 22.86, 0), V(0, 0, 1), 31.75), math.radians(90), math.radians(180)),  # 1
    Part.LineSegment(V(-70.485, 22.86, 0), V(-70.485, -22.86, 0)),  # 2
    Part.ArcOfCircle(Part.Circle(V(-38.735, -22.86, 0), V(0, 0, 1), 31.75), math.radians(180), math.radians(270)),  # 3
    Part.LineSegment(V(-38.735, -54.61, 0), V(109.22, -54.61, 0)),  # 4
    Part.ArcOfCircle(Part.Circle(V(109.22, -22.86, 0), V(0, 0, 1), 31.75), math.radians(-90), math.radians(0)),  # 5
    Part.LineSegment(V(140.97, -22.86, 0), V(140.97, 22.86, 0)),  # 6
    Part.ArcOfCircle(Part.Circle(V(109.22, 22.86, 0), V(0, 0, 1), 31.75), math.radians(0), math.radians(90)),  # 7
    Part.LineSegment(V(-60.485, -22.86, 0), V(-60.485, 22.86, 0)),  # 8
    Part.ArcOfCircle(Part.Circle(V(-38.735, 22.86, 0), V(0, 0, 1), 21.75), math.radians(90), math.radians(180)),  # 9
    Part.LineSegment(V(-38.735, 44.61, 0), V(109.22, 44.61, 0)),  # 10
    Part.ArcOfCircle(Part.Circle(V(109.22, 22.86, 0), V(0, 0, 1), 21.75), math.radians(0), math.radians(90)),  # 11
    Part.LineSegment(V(130.97, 22.86, 0), V(130.97, -22.86, 0)),  # 12
    Part.ArcOfCircle(Part.Circle(V(109.22, -22.86, 0), V(0, 0, 1), 21.75), math.radians(-90), math.radians(0)),  # 13
    Part.LineSegment(V(109.22, -44.61, 0), V(-38.735, -44.61, 0)),  # 14
    Part.ArcOfCircle(Part.Circle(V(-38.735, -22.86, 0), V(0, 0, 1), 21.75), math.radians(180), math.radians(270)),  # 15
], False)
sketch5.addConstraint([
    Sketcher.Constraint("Tangent", 0, 2, 1, 1),
    Sketcher.Constraint("Tangent", 1, 2, 2, 1),
    Sketcher.Constraint("Tangent", 2, 2, 3, 1),
    Sketcher.Constraint("Tangent", 3, 2, 4, 1),
    Sketcher.Constraint("Tangent", 4, 2, 5, 1),
    Sketcher.Constraint("Tangent", 5, 2, 6, 1),
    Sketcher.Constraint("Tangent", 6, 2, 7, 1),
    Sketcher.Constraint("Tangent", 7, 2, 0, 1),
    Sketcher.Constraint("Tangent", 8, 2, 9, 2),
    Sketcher.Constraint("Tangent", 9, 1, 10, 1),
    Sketcher.Constraint("Tangent", 10, 2, 11, 2),
    Sketcher.Constraint("Tangent", 11, 1, 12, 1),
    Sketcher.Constraint("Tangent", 12, 2, 13, 2),
    Sketcher.Constraint("Tangent", 13, 1, 14, 1),
    Sketcher.Constraint("Tangent", 14, 2, 15, 2),
    Sketcher.Constraint("Tangent", 15, 1, 8, 1),
    Sketcher.Constraint("Horizontal", 0),
    Sketcher.Constraint("Vertical", 2),
    Sketcher.Constraint("Horizontal", 4),
    Sketcher.Constraint("Vertical", 6),
    Sketcher.Constraint("Vertical", 8),
    Sketcher.Constraint("Horizontal", 10),
    Sketcher.Constraint("Vertical", 12),
    Sketcher.Constraint("Horizontal", 14),
    Sketcher.Constraint("Coincident", 9, 3, 1, 3),
    Sketcher.Constraint("Coincident", 11, 3, 7, 3),
    Sketcher.Constraint("Coincident", 13, 3, 5, 3),
    Sketcher.Constraint("Equal", 1, 3),
    Sketcher.Constraint("Equal", 3, 5),
    Sketcher.Constraint("Equal", 5, 7),
    Sketcher.Constraint("Equal", 13, 15),
    Sketcher.Constraint("Radius", 1, Q("1.25 in")),
    Sketcher.Constraint("DistanceY", 2, 2, 2, 1, Q("1.8 in")),
    Sketcher.Constraint("DistanceY", -1, 1, 1, 3, Q("0.9 in")),
    Sketcher.Constraint("DistanceX", -1, 1, 5, 3, Q("4.3 in")),
    Sketcher.Constraint("DistanceX", 0, 2, 0, 1, Q("5.825 in")),
    Sketcher.Constraint("Radius", 9, 21.75),
])
pocket2 = doc.addObject("PartDesign::Pocket", "Pocket001")
body3.addObject(pocket2)
pocket2.Profile = sketch5
pocket2.Length = Q("0.35 in")

doc.recompute()
